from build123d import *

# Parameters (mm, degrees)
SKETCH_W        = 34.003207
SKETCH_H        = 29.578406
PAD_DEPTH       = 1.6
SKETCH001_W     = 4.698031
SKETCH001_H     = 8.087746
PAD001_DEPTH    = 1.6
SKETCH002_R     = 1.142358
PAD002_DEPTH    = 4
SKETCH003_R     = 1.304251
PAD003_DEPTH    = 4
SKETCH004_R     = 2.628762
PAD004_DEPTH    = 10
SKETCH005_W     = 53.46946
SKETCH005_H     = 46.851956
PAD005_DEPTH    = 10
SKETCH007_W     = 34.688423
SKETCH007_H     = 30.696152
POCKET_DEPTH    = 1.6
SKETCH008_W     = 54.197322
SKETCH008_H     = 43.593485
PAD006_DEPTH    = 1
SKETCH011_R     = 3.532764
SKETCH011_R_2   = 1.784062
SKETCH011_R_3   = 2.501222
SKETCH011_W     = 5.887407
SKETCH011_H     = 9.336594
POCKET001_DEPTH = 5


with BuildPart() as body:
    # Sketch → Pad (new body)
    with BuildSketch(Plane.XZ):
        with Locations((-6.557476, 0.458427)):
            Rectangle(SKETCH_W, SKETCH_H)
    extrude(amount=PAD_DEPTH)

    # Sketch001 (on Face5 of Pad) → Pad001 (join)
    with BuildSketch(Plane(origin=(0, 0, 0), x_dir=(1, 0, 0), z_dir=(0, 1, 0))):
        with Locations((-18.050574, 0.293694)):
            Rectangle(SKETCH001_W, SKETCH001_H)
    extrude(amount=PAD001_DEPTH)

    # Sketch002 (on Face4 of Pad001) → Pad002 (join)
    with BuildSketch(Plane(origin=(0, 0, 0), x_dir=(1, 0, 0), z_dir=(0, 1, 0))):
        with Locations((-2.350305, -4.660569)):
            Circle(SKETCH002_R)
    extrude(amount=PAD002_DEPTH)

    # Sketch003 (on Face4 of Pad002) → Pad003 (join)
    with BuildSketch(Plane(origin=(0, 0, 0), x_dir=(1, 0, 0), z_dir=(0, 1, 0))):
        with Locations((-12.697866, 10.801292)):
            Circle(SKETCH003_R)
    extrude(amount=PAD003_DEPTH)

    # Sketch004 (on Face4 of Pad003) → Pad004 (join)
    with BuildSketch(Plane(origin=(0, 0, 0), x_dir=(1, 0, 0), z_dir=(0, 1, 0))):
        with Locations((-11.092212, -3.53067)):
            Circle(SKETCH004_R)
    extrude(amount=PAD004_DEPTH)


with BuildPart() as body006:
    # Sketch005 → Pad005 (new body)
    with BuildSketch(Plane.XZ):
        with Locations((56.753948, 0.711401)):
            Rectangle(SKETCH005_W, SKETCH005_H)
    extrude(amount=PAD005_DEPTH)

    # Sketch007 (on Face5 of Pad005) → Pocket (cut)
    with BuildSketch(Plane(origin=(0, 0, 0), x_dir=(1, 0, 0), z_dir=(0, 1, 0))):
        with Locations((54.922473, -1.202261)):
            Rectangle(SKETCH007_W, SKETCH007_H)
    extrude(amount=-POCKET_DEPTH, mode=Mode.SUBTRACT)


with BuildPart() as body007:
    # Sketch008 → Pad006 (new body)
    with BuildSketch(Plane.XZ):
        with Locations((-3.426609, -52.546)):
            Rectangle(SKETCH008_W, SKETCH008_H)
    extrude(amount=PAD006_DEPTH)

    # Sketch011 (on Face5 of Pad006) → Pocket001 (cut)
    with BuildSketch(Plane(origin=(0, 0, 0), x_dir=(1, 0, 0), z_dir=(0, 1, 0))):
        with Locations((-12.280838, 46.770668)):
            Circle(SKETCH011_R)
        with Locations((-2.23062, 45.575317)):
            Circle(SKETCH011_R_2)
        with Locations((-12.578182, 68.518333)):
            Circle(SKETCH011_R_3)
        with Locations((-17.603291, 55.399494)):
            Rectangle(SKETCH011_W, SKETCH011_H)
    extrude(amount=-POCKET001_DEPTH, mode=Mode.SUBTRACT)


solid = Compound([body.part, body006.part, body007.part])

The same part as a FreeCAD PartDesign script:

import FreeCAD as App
import Part
import Sketcher
Q = App.Units.Quantity

doc = App.newDocument("Part")
body = doc.addObject("PartDesign::Body", "Body")

# Sketch on XZ plane
sketch1 = doc.addObject("Sketcher::SketchObject", "Sketch")
body.addObject(sketch1)
sketch1.AttachmentSupport = (doc.XZ_Plane, [""])
sketch1.MapMode = "FlatFace"
sketch1.addGeometry([
    Part.LineSegment(App.Vector(-24, 15, 0), App.Vector(-24, -14, 0)),
    Part.LineSegment(App.Vector(-24, -14, 0), App.Vector(10, -14, 0)),
    Part.LineSegment(App.Vector(10, -14, 0), App.Vector(10, 15, 0)),
    Part.LineSegment(App.Vector(10, 15, 0), App.Vector(-24, 15, 0)),
], False)
sketch1.addConstraint([
    Sketcher.Constraint("Coincident", 0, 2, 1, 1),
    Sketcher.Constraint("Coincident", 1, 2, 2, 1),
    Sketcher.Constraint("Coincident", 2, 2, 3, 1),
    Sketcher.Constraint("Coincident", 3, 2, 0, 1),
    Sketcher.Constraint("Vertical", 0),
    Sketcher.Constraint("Horizontal", 1),
    Sketcher.Constraint("Vertical", 2),
    Sketcher.Constraint("Horizontal", 3),
    Sketcher.Constraint("DistanceX", 1, 1, 1, 2, Q("34.003207 mm")),
    Sketcher.Constraint("DistanceY", 0, 2, 0, 1, Q("29.578406 mm")),
    Sketcher.Constraint("DistanceX", 0, 2, -1, 1, Q("23.559079 mm")),
    Sketcher.Constraint("DistanceY", -1, 1, 2, 2, Q("15.24763 mm")),
])
pad1 = doc.addObject("PartDesign::Pad", "Pad")
body.addObject(pad1)
pad1.Profile = sketch1
pad1.Length = 1.6

# Sketch on XZ plane
sketch2 = doc.addObject("Sketcher::SketchObject", "Sketch001")
body.addObject(sketch2)
sketch2.AttachmentSupport = (doc.XZ_Plane, [""])
sketch2.MapMode = "FlatFace"
sketch2.addGeometry([
    Part.LineSegment(App.Vector(-20.4, -4.3, 0), App.Vector(-20.4, 3.8, 0)),
    Part.LineSegment(App.Vector(-20.4, 3.8, 0), App.Vector(-15.7, 3.8, 0)),
    Part.LineSegment(App.Vector(-15.7, 3.8, 0), App.Vector(-15.7, -4.3, 0)),
    Part.LineSegment(App.Vector(-15.7, -4.3, 0), App.Vector(-20.4, -4.3, 0)),
], False)
sketch2.addConstraint([
    Sketcher.Constraint("Coincident", 0, 2, 1, 1),
    Sketcher.Constraint("Coincident", 1, 2, 2, 1),
    Sketcher.Constraint("Coincident", 2, 2, 3, 1),
    Sketcher.Constraint("Coincident", 3, 2, 0, 1),
    Sketcher.Constraint("Vertical", 0),
    Sketcher.Constraint("Horizontal", 1),
    Sketcher.Constraint("Vertical", 2),
    Sketcher.Constraint("Horizontal", 3),
    Sketcher.Constraint("DistanceX", 1, 1, 1, 2, Q("4.698031 mm")),
    Sketcher.Constraint("DistanceY", 0, 1, 0, 2, Q("8.087746 mm")),
    Sketcher.Constraint("DistanceX", 0, 2, -1, 1, Q("20.39959 mm")),
    Sketcher.Constraint("DistanceY", -1, 1, 0, 2, Q("3.750179 mm")),
])
pad2 = doc.addObject("PartDesign::Pad", "Pad001")
body.addObject(pad2)
pad2.Profile = sketch2
pad2.Length = 1.6
pad2.Reversed = True

# Sketch on XZ plane
sketch3 = doc.addObject("Sketcher::SketchObject", "Sketch002")
body.addObject(sketch3)
sketch3.AttachmentSupport = (doc.XZ_Plane, [""])
sketch3.MapMode = "FlatFace"
sketch3.addGeometry(Part.Circle(App.Vector(-2.4, 4.7, 0), App.Vector(0, 0, 1), 1.1), False)
sketch3.addConstraint([
    Sketcher.Constraint("Diameter", 0, Q("2.284716 mm")),
    Sketcher.Constraint("DistanceY", -1, 1, 0, 3, Q("4.660569 mm")),
    Sketcher.Constraint("DistanceX", 0, 3, -1, 1, Q("2.350305 mm")),
])
pad3 = doc.addObject("PartDesign::Pad", "Pad002")
body.addObject(pad3)
pad3.Profile = sketch3
pad3.Length = 4
pad3.Reversed = True

# Sketch on XZ plane
sketch4 = doc.addObject("Sketcher::SketchObject", "Sketch003")
body.addObject(sketch4)
sketch4.AttachmentSupport = (doc.XZ_Plane, [""])
sketch4.MapMode = "FlatFace"
sketch4.addGeometry(Part.Circle(App.Vector(-12.7, -10.8, 0), App.Vector(0, 0, 1), 1.3), False)
sketch4.addConstraint([
    Sketcher.Constraint("Diameter", 0, Q("2.608502 mm")),
    Sketcher.Constraint("DistanceX", 0, 3, -1, 1, Q("12.697866 mm")),
    Sketcher.Constraint("DistanceY", 0, 3, -1, 1, Q("10.801292 mm")),
])
pad4 = doc.addObject("PartDesign::Pad", "Pad003")
body.addObject(pad4)
pad4.Profile = sketch4
pad4.Length = 4
pad4.Reversed = True

# Sketch on XZ plane
sketch5 = doc.addObject("Sketcher::SketchObject", "Sketch004")
body.addObject(sketch5)
sketch5.AttachmentSupport = (doc.XZ_Plane, [""])
sketch5.MapMode = "FlatFace"
sketch5.addGeometry(Part.Circle(App.Vector(-11.1, 3.5, 0), App.Vector(0, 0, 1), 2.6), False)
sketch5.addConstraint([
    Sketcher.Constraint("Diameter", 0, Q("5.257524 mm")),
    Sketcher.Constraint("DistanceY", -1, 1, 0, 3, Q("3.53067 mm")),
    Sketcher.Constraint("DistanceX", 0, 3, -1, 1, Q("11.092212 mm")),
])
pad5 = doc.addObject("PartDesign::Pad", "Pad004")
body.addObject(pad5)
pad5.Profile = sketch5
pad5.Length = 10
pad5.Reversed = True
body2 = doc.addObject("PartDesign::Body", "Body001")

# Sketch on XZ plane
sketch6 = doc.addObject("Sketcher::SketchObject", "Sketch005")
body2.addObject(sketch6)
sketch6.AttachmentSupport = (doc.getObject("XZ_Plane001"), [""])
sketch6.MapMode = "FlatFace"
sketch6.addGeometry([
    Part.LineSegment(App.Vector(30, 24, 0), App.Vector(30, -23, 0)),
    Part.LineSegment(App.Vector(30, -23, 0), App.Vector(83, -23, 0)),
    Part.LineSegment(App.Vector(83, -23, 0), App.Vector(83, 24, 0)),
    Part.LineSegment(App.Vector(83, 24, 0), App.Vector(30, 24, 0)),
], False)
sketch6.addConstraint([
    Sketcher.Constraint("Coincident", 0, 2, 1, 1),
    Sketcher.Constraint("Coincident", 1, 2, 2, 1),
    Sketcher.Constraint("Coincident", 2, 2, 3, 1),
    Sketcher.Constraint("Coincident", 3, 2, 0, 1),
    Sketcher.Constraint("Vertical", 0),
    Sketcher.Constraint("Horizontal", 1),
    Sketcher.Constraint("Vertical", 2),
    Sketcher.Constraint("Horizontal", 3),
    Sketcher.Constraint("DistanceX", 1, 1, 1, 2, Q("53.46946 mm")),
    Sketcher.Constraint("DistanceY", 0, 2, 0, 1, Q("46.851956 mm")),
    Sketcher.Constraint("DistanceY", -1, 1, 2, 2, Q("24.137379 mm")),
    Sketcher.Constraint("DistanceX", -1, 1, 0, 2, Q("30.019218 mm")),
])
pad6 = doc.addObject("PartDesign::Pad", "Pad005")
body2.addObject(pad6)
pad6.Profile = sketch6
pad6.Length = 10

# Sketch on XZ plane
sketch7 = doc.addObject("Sketcher::SketchObject", "Sketch006")
body2.addObject(sketch7)
sketch7.AttachmentSupport = (doc.getObject("XZ_Plane001"), [""])
sketch7.MapMode = "FlatFace"
sketch7.addGeometry([
    Part.LineSegment(App.Vector(38, -14, 0), App.Vector(38, 17, 0)),
    Part.LineSegment(App.Vector(38, 17, 0), App.Vector(72, 17, 0)),
    Part.LineSegment(App.Vector(72, 17, 0), App.Vector(72, -14, 0)),
    Part.LineSegment(App.Vector(72, -14, 0), App.Vector(38, -14, 0)),
], False)
sketch7.addConstraint([
    Sketcher.Constraint("Coincident", 0, 2, 1, 1),
    Sketcher.Constraint("Coincident", 1, 2, 2, 1),
    Sketcher.Constraint("Coincident", 2, 2, 3, 1),
    Sketcher.Constraint("Coincident", 3, 2, 0, 1),
    Sketcher.Constraint("Vertical", 0),
    Sketcher.Constraint("Horizontal", 1),
    Sketcher.Constraint("Vertical", 2),
    Sketcher.Constraint("Horizontal", 3),
    Sketcher.Constraint("DistanceY", 0, 1, 0, 2, Q("30.696152 mm")),
    Sketcher.Constraint("DistanceX", 1, 1, 1, 2, Q("34.688423 mm")),
    Sketcher.Constraint("DistanceX", -1, 1, 0, 2, Q("37.578262 mm")),
    Sketcher.Constraint("DistanceY", -1, 1, 0, 2, Q("16.550337 mm")),
])
pocket1 = doc.addObject("PartDesign::Pocket", "Pocket")
body2.addObject(pocket1)
pocket1.Profile = sketch7
pocket1.Length = 1.6
pocket1.Reversed = True
body3 = doc.addObject("PartDesign::Body", "Body002")

# Sketch on XZ plane
sketch8 = doc.addObject("Sketcher::SketchObject", "Sketch007")
body3.addObject(sketch8)
sketch8.AttachmentSupport = (doc.getObject("XZ_Plane002"), [""])
sketch8.MapMode = "FlatFace"
sketch8.addGeometry([
    Part.LineSegment(App.Vector(-31, -31, 0), App.Vector(-31, -74, 0)),
    Part.LineSegment(App.Vector(-31, -74, 0), App.Vector(24, -74, 0)),
    Part.LineSegment(App.Vector(24, -74, 0), App.Vector(24, -31, 0)),
    Part.LineSegment(App.Vector(24, -31, 0), App.Vector(-31, -31, 0)),
], False)
sketch8.addConstraint([
    Sketcher.Constraint("Coincident", 0, 2, 1, 1),
    Sketcher.Constraint("Coincident", 1, 2, 2, 1),
    Sketcher.Constraint("Coincident", 2, 2, 3, 1),
    Sketcher.Constraint("Coincident", 3, 2, 0, 1),
    Sketcher.Constraint("Vertical", 0),
    Sketcher.Constraint("Horizontal", 1),
    Sketcher.Constraint("Vertical", 2),
    Sketcher.Constraint("Horizontal", 3),
    Sketcher.Constraint("DistanceX", 1, 1, 1, 2, Q("54.197322 mm")),
    Sketcher.Constraint("DistanceY", 0, 2, 0, 1, Q("43.593485 mm")),
    Sketcher.Constraint("DistanceX", 0, 2, -1, 1, Q("30.52527 mm")),
    Sketcher.Constraint("DistanceY", 0, 2, -1, 1, Q("74.342742 mm")),
])
pad7 = doc.addObject("PartDesign::Pad", "Pad006")
body3.addObject(pad7)
pad7.Profile = sketch8
pad7.Length = 1

# Sketch on XZ plane
sketch9 = doc.addObject("Sketcher::SketchObject", "Sketch008")
body3.addObject(sketch9)
sketch9.AttachmentSupport = (doc.getObject("XZ_Plane002"), [""])
sketch9.MapMode = "FlatFace"
sketch9.addGeometry([
    Part.Circle(App.Vector(-12.3, -46.8, 0), App.Vector(0, 0, 1), 3.5),  # 0
    Part.Circle(App.Vector(-2.2, -45.6, 0), App.Vector(0, 0, 1), 1.8),  # 1
    Part.Circle(App.Vector(-12.6, -68.5, 0), App.Vector(0, 0, 1), 2.5),  # 2
    Part.LineSegment(App.Vector(-20.5, -60.1, 0), App.Vector(-20.5, -50.7, 0)),  # 3
    Part.LineSegment(App.Vector(-20.5, -50.7, 0), App.Vector(-14.7, -50.7, 0)),  # 4
    Part.LineSegment(App.Vector(-14.7, -50.7, 0), App.Vector(-14.7, -60.1, 0)),  # 5
    Part.LineSegment(App.Vector(-14.7, -60.1, 0), App.Vector(-20.5, -60.1, 0)),  # 6
], False)
sketch9.addConstraint([
    Sketcher.Constraint("Coincident", 3, 2, 4, 1),
    Sketcher.Constraint("Coincident", 4, 2, 5, 1),
    Sketcher.Constraint("Coincident", 5, 2, 6, 1),
    Sketcher.Constraint("Coincident", 6, 2, 3, 1),
    Sketcher.Constraint("Vertical", 3),
    Sketcher.Constraint("Horizontal", 4),
    Sketcher.Constraint("Vertical", 5),
    Sketcher.Constraint("Horizontal", 6),
    Sketcher.Constraint("Diameter", 0, Q("7.065528 mm")),
    Sketcher.Constraint("Diameter", 1, Q("3.568124 mm")),
    Sketcher.Constraint("Diameter", 2, Q("5.002444 mm")),
    Sketcher.Constraint("DistanceX", 4, 1, 4, 2, Q("5.887407 mm")),
    Sketcher.Constraint("DistanceY", 3, 1, 3, 2, Q("9.336594 mm")),
    Sketcher.Constraint("DistanceX", 1, 3, -1, 1, Q("2.23062 mm")),
    Sketcher.Constraint("DistanceY", 5, 2, -1, 1, Q("60.067791 mm")),
    Sketcher.Constraint("DistanceY", 0, 3, 1, 3, Q("1.195351 mm")),
    Sketcher.Constraint("DistanceY", 3, 2, 0, 3, Q("3.960529 mm")),
    Sketcher.Constraint("DistanceX", 4, 2, 0, 3, Q("2.37875 mm")),
    Sketcher.Constraint("DistanceY", 2, 3, 5, 2, Q("8.450542 mm")),
    Sketcher.Constraint("DistanceX", 0, 3, -1, 1, Q("12.280838 mm")),
    Sketcher.Constraint("DistanceX", 2, 3, -1, 1, Q("12.578182 mm")),
])
pocket2 = doc.addObject("PartDesign::Pocket", "Pocket001")
body3.addObject(pocket2)
pocket2.Profile = sketch9
pocket2.Length = 5
pocket2.Reversed = True

doc.recompute()
